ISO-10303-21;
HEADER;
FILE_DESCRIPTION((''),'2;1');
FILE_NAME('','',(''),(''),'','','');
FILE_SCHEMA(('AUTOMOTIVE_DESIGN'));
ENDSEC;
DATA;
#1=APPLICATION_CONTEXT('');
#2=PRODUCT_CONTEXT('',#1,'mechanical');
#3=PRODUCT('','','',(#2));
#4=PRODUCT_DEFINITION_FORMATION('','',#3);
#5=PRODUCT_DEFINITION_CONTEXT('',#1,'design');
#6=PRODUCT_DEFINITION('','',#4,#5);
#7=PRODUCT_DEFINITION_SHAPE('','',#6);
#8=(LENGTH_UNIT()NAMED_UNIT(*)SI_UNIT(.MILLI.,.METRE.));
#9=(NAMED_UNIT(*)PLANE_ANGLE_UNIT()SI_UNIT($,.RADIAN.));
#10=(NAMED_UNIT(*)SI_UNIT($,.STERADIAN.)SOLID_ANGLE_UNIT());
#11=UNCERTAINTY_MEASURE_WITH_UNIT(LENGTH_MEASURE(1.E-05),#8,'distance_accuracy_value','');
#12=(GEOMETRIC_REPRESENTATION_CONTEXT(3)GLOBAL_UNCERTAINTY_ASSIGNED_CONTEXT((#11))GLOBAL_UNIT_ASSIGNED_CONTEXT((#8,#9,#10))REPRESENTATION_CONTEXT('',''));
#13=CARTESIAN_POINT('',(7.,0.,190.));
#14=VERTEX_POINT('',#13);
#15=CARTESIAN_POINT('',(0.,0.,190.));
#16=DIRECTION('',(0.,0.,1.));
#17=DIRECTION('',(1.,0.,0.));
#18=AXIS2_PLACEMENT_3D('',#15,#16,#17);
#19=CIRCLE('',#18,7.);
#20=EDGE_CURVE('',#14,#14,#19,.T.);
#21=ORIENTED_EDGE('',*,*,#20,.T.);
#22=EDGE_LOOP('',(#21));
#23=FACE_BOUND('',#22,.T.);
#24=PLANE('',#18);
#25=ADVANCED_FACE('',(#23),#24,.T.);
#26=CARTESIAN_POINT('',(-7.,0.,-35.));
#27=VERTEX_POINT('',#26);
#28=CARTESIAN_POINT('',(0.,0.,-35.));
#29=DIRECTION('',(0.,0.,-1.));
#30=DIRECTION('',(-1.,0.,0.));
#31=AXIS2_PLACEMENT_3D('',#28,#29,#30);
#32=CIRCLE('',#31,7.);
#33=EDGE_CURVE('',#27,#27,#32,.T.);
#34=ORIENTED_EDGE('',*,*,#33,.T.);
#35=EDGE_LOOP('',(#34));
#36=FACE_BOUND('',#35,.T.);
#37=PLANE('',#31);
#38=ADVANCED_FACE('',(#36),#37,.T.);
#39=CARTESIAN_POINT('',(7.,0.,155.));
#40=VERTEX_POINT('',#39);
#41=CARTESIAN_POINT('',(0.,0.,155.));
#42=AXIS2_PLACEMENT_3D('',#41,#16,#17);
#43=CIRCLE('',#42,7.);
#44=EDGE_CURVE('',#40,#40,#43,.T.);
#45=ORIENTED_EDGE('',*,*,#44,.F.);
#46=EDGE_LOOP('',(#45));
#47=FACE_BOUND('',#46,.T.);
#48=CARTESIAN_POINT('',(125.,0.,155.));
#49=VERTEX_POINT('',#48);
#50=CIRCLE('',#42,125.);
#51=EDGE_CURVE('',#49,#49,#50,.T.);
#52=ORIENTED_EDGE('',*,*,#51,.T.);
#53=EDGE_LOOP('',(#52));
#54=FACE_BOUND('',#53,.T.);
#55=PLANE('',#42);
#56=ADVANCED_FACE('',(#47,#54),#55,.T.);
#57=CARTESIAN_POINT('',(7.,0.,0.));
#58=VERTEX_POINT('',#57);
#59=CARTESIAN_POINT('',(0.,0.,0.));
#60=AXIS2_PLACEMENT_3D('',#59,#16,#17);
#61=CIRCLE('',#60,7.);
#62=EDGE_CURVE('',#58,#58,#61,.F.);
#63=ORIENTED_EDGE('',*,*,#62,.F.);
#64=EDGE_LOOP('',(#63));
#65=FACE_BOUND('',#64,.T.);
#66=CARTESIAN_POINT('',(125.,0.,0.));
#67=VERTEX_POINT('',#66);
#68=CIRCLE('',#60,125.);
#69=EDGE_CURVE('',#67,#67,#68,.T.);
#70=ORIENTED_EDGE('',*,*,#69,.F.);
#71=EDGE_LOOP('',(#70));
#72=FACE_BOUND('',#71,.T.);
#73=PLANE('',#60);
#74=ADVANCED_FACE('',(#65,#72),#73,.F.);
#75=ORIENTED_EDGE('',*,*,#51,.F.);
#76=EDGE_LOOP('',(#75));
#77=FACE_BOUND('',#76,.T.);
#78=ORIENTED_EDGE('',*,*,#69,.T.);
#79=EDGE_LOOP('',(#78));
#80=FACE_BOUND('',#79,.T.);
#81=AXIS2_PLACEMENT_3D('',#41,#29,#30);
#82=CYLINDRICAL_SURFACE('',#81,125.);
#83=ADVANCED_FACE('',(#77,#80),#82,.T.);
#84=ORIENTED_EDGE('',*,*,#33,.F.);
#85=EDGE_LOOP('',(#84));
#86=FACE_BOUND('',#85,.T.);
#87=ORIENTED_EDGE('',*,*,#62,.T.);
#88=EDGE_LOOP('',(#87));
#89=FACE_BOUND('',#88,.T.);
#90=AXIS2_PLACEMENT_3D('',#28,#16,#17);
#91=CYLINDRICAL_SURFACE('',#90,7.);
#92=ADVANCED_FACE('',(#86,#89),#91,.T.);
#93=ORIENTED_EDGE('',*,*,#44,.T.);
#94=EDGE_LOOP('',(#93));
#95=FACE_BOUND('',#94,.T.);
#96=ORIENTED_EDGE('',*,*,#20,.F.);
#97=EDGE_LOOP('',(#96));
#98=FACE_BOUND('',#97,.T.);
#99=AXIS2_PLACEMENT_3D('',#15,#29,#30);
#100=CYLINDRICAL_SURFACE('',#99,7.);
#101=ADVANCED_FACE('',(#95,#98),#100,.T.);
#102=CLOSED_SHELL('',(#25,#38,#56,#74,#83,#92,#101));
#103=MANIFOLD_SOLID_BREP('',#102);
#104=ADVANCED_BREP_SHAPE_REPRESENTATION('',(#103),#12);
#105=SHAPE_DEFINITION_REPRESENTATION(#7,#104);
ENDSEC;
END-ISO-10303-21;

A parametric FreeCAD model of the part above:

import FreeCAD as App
import Part
import Sketcher

V = App.Vector

doc = App.newDocument("Part")
body = doc.addObject("PartDesign::Body", "Body")

# Sketch on XY plane
sketch1 = body.newObject("Sketcher::SketchObject", "Sketch")
sketch1.AttachmentSupport = (doc.getObject("XY_Plane"), [""])
sketch1.MapMode = "FlatFace"
sketch1.addGeometry(Part.Circle(V(0, 0, 0), V(0, 0, 1), 125), False)
sketch1.addConstraint([
    Sketcher.Constraint("Coincident", 0, 3, -1, 1),
    Sketcher.Constraint("Diameter", 0, 250.0),
])
pad1 = body.newObject("PartDesign::Pad", "Pad")
pad1.Profile = sketch1
pad1.Length = 155

# Sketch on XY plane
sketch2 = body.newObject("Sketcher::SketchObject", "Sketch001")
sketch2.AttachmentSupport = (doc.getObject("XY_Plane"), [""])
sketch2.MapMode = "FlatFace"
sketch2.AttachmentOffset = App.Placement(V(0, 0, 155), App.Rotation())
sketch2.addGeometry(Part.Circle(V(0, 0, 0), V(0, 0, 1), 7), False)
sketch2.addConstraint([
    Sketcher.Constraint("Coincident", 0, 3, -1, 1),
    Sketcher.Constraint("Diameter", 0, 14.0),
])
pad2 = body.newObject("PartDesign::Pad", "Pad001")
pad2.Profile = sketch2
pad2.Length = 35

# Sketch on XY plane
sketch3 = body.newObject("Sketcher::SketchObject", "Sketch002")
sketch3.AttachmentSupport = (doc.getObject("XY_Plane"), [""])
sketch3.MapMode = "FlatFace"
sketch3.addGeometry(Part.Circle(V(0, 0, 0), V(0, 0, 1), 7), False)
sketch3.addConstraint([
    Sketcher.Constraint("Coincident", 0, 3, -1, 1),
    Sketcher.Constraint("Diameter", 0, 14.0),
])
pad3 = body.newObject("PartDesign::Pad", "Pad002")
pad3.Profile = sketch3
pad3.Length = 35
pad3.Reversed = True

doc.recompute()
